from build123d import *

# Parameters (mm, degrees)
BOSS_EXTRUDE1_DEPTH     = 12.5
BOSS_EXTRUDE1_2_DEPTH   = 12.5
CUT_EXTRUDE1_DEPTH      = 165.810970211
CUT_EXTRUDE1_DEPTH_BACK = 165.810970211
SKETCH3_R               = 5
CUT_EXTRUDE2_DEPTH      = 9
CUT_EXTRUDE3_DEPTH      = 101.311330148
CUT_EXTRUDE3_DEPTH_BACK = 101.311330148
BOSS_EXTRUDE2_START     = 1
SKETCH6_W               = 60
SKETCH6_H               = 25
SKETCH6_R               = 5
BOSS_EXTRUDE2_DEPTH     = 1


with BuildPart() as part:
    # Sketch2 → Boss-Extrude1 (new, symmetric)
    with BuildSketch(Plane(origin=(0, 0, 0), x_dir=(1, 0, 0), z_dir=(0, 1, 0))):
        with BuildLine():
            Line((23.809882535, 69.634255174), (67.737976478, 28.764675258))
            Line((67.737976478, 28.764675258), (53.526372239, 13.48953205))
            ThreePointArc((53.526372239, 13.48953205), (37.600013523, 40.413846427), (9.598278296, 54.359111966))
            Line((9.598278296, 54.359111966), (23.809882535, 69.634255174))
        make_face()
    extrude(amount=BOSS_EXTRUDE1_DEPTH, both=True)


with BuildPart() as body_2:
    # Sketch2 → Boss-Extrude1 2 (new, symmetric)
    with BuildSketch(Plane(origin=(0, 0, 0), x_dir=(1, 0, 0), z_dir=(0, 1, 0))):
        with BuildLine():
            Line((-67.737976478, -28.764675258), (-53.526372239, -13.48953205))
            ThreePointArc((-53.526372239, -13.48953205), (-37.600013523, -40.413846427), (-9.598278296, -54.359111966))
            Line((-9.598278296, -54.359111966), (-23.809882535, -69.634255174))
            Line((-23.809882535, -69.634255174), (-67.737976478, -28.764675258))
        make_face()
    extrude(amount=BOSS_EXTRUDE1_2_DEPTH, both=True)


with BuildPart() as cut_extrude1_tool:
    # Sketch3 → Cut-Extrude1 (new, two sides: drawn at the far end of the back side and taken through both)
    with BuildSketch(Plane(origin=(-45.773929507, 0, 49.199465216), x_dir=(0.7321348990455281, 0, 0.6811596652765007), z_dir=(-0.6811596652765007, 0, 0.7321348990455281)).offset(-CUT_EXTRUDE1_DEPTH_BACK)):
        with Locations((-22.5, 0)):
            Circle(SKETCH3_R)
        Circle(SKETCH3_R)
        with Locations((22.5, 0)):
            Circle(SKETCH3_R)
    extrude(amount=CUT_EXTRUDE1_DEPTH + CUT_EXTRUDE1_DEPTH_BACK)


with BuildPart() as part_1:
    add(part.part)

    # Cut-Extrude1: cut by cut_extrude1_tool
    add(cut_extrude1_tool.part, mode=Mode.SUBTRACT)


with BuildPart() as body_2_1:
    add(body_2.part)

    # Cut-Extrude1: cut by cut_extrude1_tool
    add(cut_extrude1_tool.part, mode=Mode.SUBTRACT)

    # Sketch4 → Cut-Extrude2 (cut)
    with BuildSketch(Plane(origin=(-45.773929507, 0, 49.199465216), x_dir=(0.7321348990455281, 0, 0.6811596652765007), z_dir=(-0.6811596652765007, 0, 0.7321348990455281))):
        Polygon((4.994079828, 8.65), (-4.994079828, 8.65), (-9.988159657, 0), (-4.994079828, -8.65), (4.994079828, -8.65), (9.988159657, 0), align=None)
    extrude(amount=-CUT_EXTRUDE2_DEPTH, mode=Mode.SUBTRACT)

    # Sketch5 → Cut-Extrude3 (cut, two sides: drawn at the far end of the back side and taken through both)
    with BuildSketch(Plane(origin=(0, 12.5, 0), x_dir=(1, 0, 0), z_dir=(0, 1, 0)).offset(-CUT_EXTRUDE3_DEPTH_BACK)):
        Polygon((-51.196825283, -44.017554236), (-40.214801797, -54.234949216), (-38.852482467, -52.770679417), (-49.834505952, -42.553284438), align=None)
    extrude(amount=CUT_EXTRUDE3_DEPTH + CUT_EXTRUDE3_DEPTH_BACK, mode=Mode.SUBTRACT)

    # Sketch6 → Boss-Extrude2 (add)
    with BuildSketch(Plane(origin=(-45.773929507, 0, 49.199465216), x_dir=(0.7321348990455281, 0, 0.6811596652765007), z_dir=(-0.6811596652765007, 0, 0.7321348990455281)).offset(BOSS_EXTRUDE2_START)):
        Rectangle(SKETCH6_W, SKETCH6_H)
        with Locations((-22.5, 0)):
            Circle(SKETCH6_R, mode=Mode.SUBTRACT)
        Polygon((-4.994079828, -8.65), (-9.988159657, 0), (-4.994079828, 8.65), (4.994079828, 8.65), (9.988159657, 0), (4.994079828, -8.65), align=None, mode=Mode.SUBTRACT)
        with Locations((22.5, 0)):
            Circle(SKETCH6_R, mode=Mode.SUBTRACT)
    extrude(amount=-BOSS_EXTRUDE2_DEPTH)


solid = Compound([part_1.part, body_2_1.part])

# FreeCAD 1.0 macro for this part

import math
import FreeCAD as App
import Part
import Sketcher
Q = App.Units.Quantity

doc = App.newDocument("Part")
body = doc.addObject("PartDesign::Body", "Body")

# Sketch on XZ plane
sketch1 = body.newObject("Sketcher::SketchObject", "Sketch")
sketch1.AttachmentSupport = (doc.getObject("XZ_Plane"), [""])
sketch1.MapMode = "FlatFace"
sketch1.addGeometry([
    Part.LineSegment(App.Vector(68, -29, 0), App.Vector(24, -70, 0)),
    Part.LineSegment(App.Vector(24, -70, 0), App.Vector(10, -54, 0)),
    Part.ArcOfCircle(Part.Circle(App.Vector(0, 0, 0), App.Vector(0, 0, 1), 55), math.radians(-80), math.radians(-14)),
    Part.LineSegment(App.Vector(54, -13, 0), App.Vector(68, -29, 0)),
], False)
sketch1.addConstraint([
    Sketcher.Constraint("Coincident", 0, 2, 1, 1),
    Sketcher.Constraint("Coincident", 1, 2, 2, 1),
    Sketcher.Constraint("Coincident", 2, 2, 3, 1),
    Sketcher.Constraint("Coincident", 3, 2, 0, 1),
    Sketcher.Constraint("Coincident", 2, 3, -1, 1),
    Sketcher.Constraint("Perpendicular", 0, 1),
    Sketcher.Constraint("Parallel", 1, 3),
    Sketcher.Constraint("Equal", 1, 3),
    Sketcher.Constraint("Radius", 2, 55.2),
    Sketcher.Constraint("Distance", 0, 60.0),
    Sketcher.Constraint("DistanceX", 1, 2, 3, 2, 58.139698),
    Sketcher.Constraint("DistanceX", -1, 1, 1, 2, 9.598278),
])
pad1 = body.newObject("PartDesign::Pad", "Pad")
pad1.Profile = sketch1
pad1.Length = 25
pad1.Midplane = True
body2 = doc.addObject("PartDesign::Body", "Body001")

# Sketch on XZ plane
sketch2 = body2.newObject("Sketcher::SketchObject", "Sketch001")
sketch2.AttachmentSupport = (doc.getObject("XZ_Plane001"), [""])
sketch2.MapMode = "FlatFace"
sketch2.addGeometry([
    Part.LineSegment(App.Vector(-54, 13, 0), App.Vector(-68, 29, 0)),
    Part.LineSegment(App.Vector(-68, 29, 0), App.Vector(-24, 70, 0)),
    Part.LineSegment(App.Vector(-24, 70, 0), App.Vector(-10, 54, 0)),
    Part.ArcOfCircle(Part.Circle(App.Vector(0, 0, 0), App.Vector(0, 0, 1), 55), math.radians(100), math.radians(166)),
], False)
sketch2.addConstraint([
    Sketcher.Constraint("Coincident", 0, 2, 1, 1),
    Sketcher.Constraint("Coincident", 1, 2, 2, 1),
    Sketcher.Constraint("Coincident", 2, 2, 3, 1),
    Sketcher.Constraint("Coincident", 3, 2, 0, 1),
    Sketcher.Constraint("Coincident", 3, 3, -1, 1),
    Sketcher.Constraint("Perpendicular", 0, 1),
    Sketcher.Constraint("Perpendicular", 1, 2),
    Sketcher.Constraint("Equal", 0, 2),
    Sketcher.Constraint("Radius", 3, 55.2),
    Sketcher.Constraint("Distance", 1, 60.0),
    Sketcher.Constraint("DistanceX", 0, 2, 2, 2, 58.139698),
    Sketcher.Constraint("DistanceX", 2, 2, -1, 1, 9.598278),
])
pad2 = body2.newObject("PartDesign::Pad", "Pad001")
pad2.Profile = sketch2
pad2.Length = 25
pad2.Midplane = True
body3 = doc.addObject("PartDesign::Body", "Body002")
body3.AllowCompound = True

# Sketch on an angled plane
sketch3 = body3.newObject("Sketcher::SketchObject", "Sketch002")
sketch3.Placement = App.Placement(App.Vector(-45.773929, 0, 49.199465), App.Rotation(App.Vector(0.732134899, 0, 0.681159665), App.Vector(0, 1, 0), App.Vector(-0.681159665, 0, 0.732134899), "ZXY"))
sketch3.addGeometry([
    Part.Circle(App.Vector(-22, 0, 0), App.Vector(0, 0, 1), 5),
    Part.Circle(App.Vector(0, 0, 0), App.Vector(0, 0, 1), 5),
    Part.Circle(App.Vector(22, 0, 0), App.Vector(0, 0, 1), 5),
], False)
sketch3.addConstraint([
    Sketcher.Constraint("Coincident", 1, 3, -1, 1),
    Sketcher.Constraint("Equal", 0, 1),
    Sketcher.Constraint("Equal", 1, 2),
    Sketcher.Constraint("Symmetric", 0, 3, 2, 3, -1, 1),
    Sketcher.Constraint("PointOnObject", 0, 3, -1),
    Sketcher.Constraint("Diameter", 0, 10.0),
    Sketcher.Constraint("DistanceX", 0, 3, 2, 3, 45.0),
])
pad3 = body3.newObject("PartDesign::Pad", "Pad002")
pad3.Profile = sketch3
pad3.Type = "TwoLengths"
pad3.Length = 165.81097
pad3.Length2 = 165.81097
doc.recompute()

body4 = doc.addObject("PartDesign::Body", "Body003")
body4.BaseFeature = body3
boolean = body.newObject("PartDesign::Boolean", "Boolean")
boolean.Type = "Cut"
boolean.addObjects([body4])
doc.recompute()

boolean2 = body2.newObject("PartDesign::Boolean", "Boolean001")
boolean2.Type = "Cut"
boolean2.addObjects([body3])

# Sketch on an angled plane
sketch4 = body2.newObject("Sketcher::SketchObject", "Sketch003")
sketch4.Placement = App.Placement(App.Vector(-45.77393, 0, 49.199465), App.Rotation(App.Vector(0.732134899, 0, 0.681159665), App.Vector(0, 1, 0), App.Vector(-0.681159665, 0, 0.732134899), "ZXY"))
sketch4.addGeometry([
    Part.LineSegment(App.Vector(5, 9, 0), App.Vector(-5, 9, 0)),  # 0
    Part.LineSegment(App.Vector(-5, 9, 0), App.Vector(-10, 0, 0)),  # 1
    Part.LineSegment(App.Vector(-10, 0, 0), App.Vector(-5, -9, 0)),  # 2
    Part.LineSegment(App.Vector(-5, -9, 0), App.Vector(5, -9, 0)),  # 3
    Part.LineSegment(App.Vector(5, -9, 0), App.Vector(10, 0, 0)),  # 4
    Part.LineSegment(App.Vector(10, 0, 0), App.Vector(5, 9, 0)),  # 5
], False)
sketch4.addConstraint([
    Sketcher.Constraint("Coincident", 0, 2, 1, 1),
    Sketcher.Constraint("Coincident", 1, 2, 2, 1),
    Sketcher.Constraint("Coincident", 2, 2, 3, 1),
    Sketcher.Constraint("Coincident", 3, 2, 4, 1),
    Sketcher.Constraint("Coincident", 4, 2, 5, 1),
    Sketcher.Constraint("Coincident", 5, 2, 0, 1),
    Sketcher.Constraint("Horizontal", 0),
    Sketcher.Constraint("Horizontal", 3),
    Sketcher.Constraint("Symmetric", 0, 2, 3, 2, -1, 1),
    Sketcher.Constraint("Symmetric", 1, 2, 4, 2, -1, 1),
    Sketcher.Constraint("PointOnObject", 1, 2, -1),
    Sketcher.Constraint("Parallel", 2, 5),
    Sketcher.Constraint("Vertical", 0, 2, 2, 2),
    Sketcher.Constraint("Angle", 1, Q("-120 deg")),
    Sketcher.Constraint("DistanceY", 2, 2, 0, 2, 17.3),
    Sketcher.Constraint("DistanceX", 0, 2, 0, 1, 9.98816),
])
pocket1 = body2.newObject("PartDesign::Pocket", "Pocket")
pocket1.Profile = sketch4
pocket1.Length = 9

# Sketch on XZ plane
sketch5 = body2.newObject("Sketcher::SketchObject", "Sketch004")
sketch5.AttachmentSupport = (doc.getObject("XZ_Plane001"), [""])
sketch5.MapMode = "FlatFace"
sketch5.AttachmentOffset = App.Placement(App.Vector(0, 0, -12.5), App.Rotation())
sketch5.addGeometry([
    Part.LineSegment(App.Vector(-51.2, 44, 0), App.Vector(-40.2, 54.2, 0)),
    Part.LineSegment(App.Vector(-40.2, 54.2, 0), App.Vector(-38.9, 52.8, 0)),
    Part.LineSegment(App.Vector(-38.9, 52.8, 0), App.Vector(-49.8, 42.6, 0)),
    Part.LineSegment(App.Vector(-49.8, 42.6, 0), App.Vector(-51.2, 44, 0)),
], False)
sketch5.addConstraint([
    Sketcher.Constraint("Coincident", 0, 2, 1, 1),
    Sketcher.Constraint("Coincident", 1, 2, 2, 1),
    Sketcher.Constraint("Coincident", 2, 2, 3, 1),
    Sketcher.Constraint("Coincident", 3, 2, 0, 1),
    Sketcher.Constraint("Perpendicular", 0, 1),
    Sketcher.Constraint("Perpendicular", 1, 2),
    Sketcher.Constraint("Perpendicular", 2, 3),
    Sketcher.Constraint("Distance", 0, 15.0),
    Sketcher.Constraint("Distance", 1, 2.0),
    Sketcher.Constraint("DistanceX", 0, 2, -1, 1, 40.214802),
    Sketcher.Constraint("DistanceY", -1, 1, 0, 2, 54.234949),
    Sketcher.Constraint("DistanceY", -1, 1, 1, 2, 52.770679),
])
pocket2 = body2.newObject("PartDesign::Pocket", "Pocket001")
pocket2.Profile = sketch5
pocket2.Type = "ThroughAll"
pocket2.Midplane = True

# Sketch on an angled plane
sketch6 = body2.newObject("Sketcher::SketchObject", "Sketch005")
sketch6.Placement = App.Placement(App.Vector(-46.455089, 0, 49.9316), App.Rotation(App.Vector(0.732134899, 0, 0.681159665), App.Vector(0, 1, 0), App.Vector(-0.681159665, 0, 0.732134899), "ZXY"))
sketch6.addGeometry([
    Part.LineSegment(App.Vector(-30, 12, 0), App.Vector(-30, -12, 0)),  # 0
    Part.LineSegment(App.Vector(-30, -12, 0), App.Vector(30, -12, 0)),  # 1
    Part.LineSegment(App.Vector(30, -12, 0), App.Vector(30, 12, 0)),  # 2
    Part.LineSegment(App.Vector(30, 12, 0), App.Vector(-30, 12, 0)),  # 3
    Part.Circle(App.Vector(-22, 0, 0), App.Vector(0, 0, 1), 5),  # 4
    Part.LineSegment(App.Vector(5, -9, 0), App.Vector(-5, -9, 0)),  # 5
    Part.LineSegment(App.Vector(-5, -9, 0), App.Vector(-10, 0, 0)),  # 6
    Part.LineSegment(App.Vector(-10, 0, 0), App.Vector(-5, 9, 0)),  # 7
    Part.LineSegment(App.Vector(-5, 9, 0), App.Vector(5, 9, 0)),  # 8
    Part.LineSegment(App.Vector(5, 9, 0), App.Vector(10, 0, 0)),  # 9
    Part.LineSegment(App.Vector(10, 0, 0), App.Vector(5, -9, 0)),  # 10
    Part.Circle(App.Vector(22, 0, 0), App.Vector(0, 0, 1), 5),  # 11
], False)
sketch6.addConstraint([
    Sketcher.Constraint("Coincident", 0, 2, 1, 1),
    Sketcher.Constraint("Coincident", 1, 2, 2, 1),
    Sketcher.Constraint("Coincident", 2, 2, 3, 1),
    Sketcher.Constraint("Coincident", 3, 2, 0, 1),
    Sketcher.Constraint("Coincident", 5, 2, 6, 1),
    Sketcher.Constraint("Coincident", 6, 2, 7, 1),
    Sketcher.Constraint("Coincident", 7, 2, 8, 1),
    Sketcher.Constraint("Coincident", 8, 2, 9, 1),
    Sketcher.Constraint("Coincident", 9, 2, 10, 1),
    Sketcher.Constraint("Coincident", 10, 2, 5, 1),
    Sketcher.Constraint("Vertical", 0),
    Sketcher.Constraint("Horizontal", 1),
    Sketcher.Constraint("Vertical", 2),
    Sketcher.Constraint("Horizontal", 3),
    Sketcher.Constraint("Horizontal", 5),
    Sketcher.Constraint("Horizontal", 8),
    Sketcher.Constraint("Equal", 4, 11),
    Sketcher.Constraint("Symmetric", 4, 3, 11, 3, -1, 1),
    Sketcher.Constraint("Symmetric", 0, 2, 2, 2, -1, 1),
    Sketcher.Constraint("Symmetric", 5, 2, 8, 2, -1, 1),
    Sketcher.Constraint("Symmetric", 6, 2, 9, 2, -1, 1),
    Sketcher.Constraint("PointOnObject", 4, 3, -1),
    Sketcher.Constraint("PointOnObject", 6, 2, -1),
    Sketcher.Constraint("Parallel", 7, 10),
    Sketcher.Constraint("Vertical", 5, 2, 7, 2),
    Sketcher.Constraint("Diameter", 4, 10.0),
    Sketcher.Constraint("DistanceX", 1, 1, 1, 2, 60.0),
    Sketcher.Constraint("DistanceY", 0, 2, 0, 1, 25.0),
    Sketcher.Constraint("Angle", 6, Q("120 deg")),
    Sketcher.Constraint("DistanceX", 4, 3, 11, 3, 45.0),
    Sketcher.Constraint("DistanceY", 5, 2, 7, 2, 17.3),
    Sketcher.Constraint("DistanceX", 5, 2, 5, 1, 9.98816),
])
pad4 = body2.newObject("PartDesign::Pad", "Pad003")
pad4.Profile = sketch6
pad4.Length = 1
pad4.Reversed = True

doc.recompute()
